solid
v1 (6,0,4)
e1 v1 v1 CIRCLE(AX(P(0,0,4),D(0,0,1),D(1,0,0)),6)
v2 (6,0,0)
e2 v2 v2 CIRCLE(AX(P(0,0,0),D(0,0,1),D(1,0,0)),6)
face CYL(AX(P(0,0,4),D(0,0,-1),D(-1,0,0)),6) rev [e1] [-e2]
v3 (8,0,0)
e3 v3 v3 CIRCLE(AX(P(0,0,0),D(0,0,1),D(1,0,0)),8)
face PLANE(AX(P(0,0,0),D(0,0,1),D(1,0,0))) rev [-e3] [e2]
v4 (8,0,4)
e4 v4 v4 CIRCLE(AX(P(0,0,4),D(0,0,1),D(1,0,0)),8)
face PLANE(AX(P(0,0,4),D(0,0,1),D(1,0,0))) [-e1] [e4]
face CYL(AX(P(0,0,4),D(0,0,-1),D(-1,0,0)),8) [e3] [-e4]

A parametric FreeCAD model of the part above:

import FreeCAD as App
import Part
import Sketcher
from FreeCAD import Vector
Q = App.Units.Quantity

doc = App.newDocument("Part")
body = doc.addObject("PartDesign::Body", "Body")

# Sketch on XY plane
sketch1 = body.newObject("Sketcher::SketchObject", "Sketch")
sketch1.AttachmentSupport = (doc.getObject("XY_Plane"), [""])
sketch1.MapMode = "FlatFace"
sketch1.addGeometry(Part.Circle(Vector(0, 0, 0), Vector(0, 0, 1), 8), False)
sketch1.addGeometry(Part.Circle(Vector(0, 0, 0), Vector(0, 0, 1), 6), False)
sketch1.addConstraint(Sketcher.Constraint("Coincident", 0, 3, -1, 1))
sketch1.addConstraint(Sketcher.Constraint("Coincident", 1, 3, -1, 1))
sketch1.addConstraint(Sketcher.Constraint("Diameter", 0, Q("16 mm")))
sketch1.addConstraint(Sketcher.Constraint("Diameter", 1, Q("12 mm")))
pad1 = body.newObject("PartDesign::Pad", "Pad")
pad1.Profile = sketch1
pad1.Length = 4

doc.recompute()
